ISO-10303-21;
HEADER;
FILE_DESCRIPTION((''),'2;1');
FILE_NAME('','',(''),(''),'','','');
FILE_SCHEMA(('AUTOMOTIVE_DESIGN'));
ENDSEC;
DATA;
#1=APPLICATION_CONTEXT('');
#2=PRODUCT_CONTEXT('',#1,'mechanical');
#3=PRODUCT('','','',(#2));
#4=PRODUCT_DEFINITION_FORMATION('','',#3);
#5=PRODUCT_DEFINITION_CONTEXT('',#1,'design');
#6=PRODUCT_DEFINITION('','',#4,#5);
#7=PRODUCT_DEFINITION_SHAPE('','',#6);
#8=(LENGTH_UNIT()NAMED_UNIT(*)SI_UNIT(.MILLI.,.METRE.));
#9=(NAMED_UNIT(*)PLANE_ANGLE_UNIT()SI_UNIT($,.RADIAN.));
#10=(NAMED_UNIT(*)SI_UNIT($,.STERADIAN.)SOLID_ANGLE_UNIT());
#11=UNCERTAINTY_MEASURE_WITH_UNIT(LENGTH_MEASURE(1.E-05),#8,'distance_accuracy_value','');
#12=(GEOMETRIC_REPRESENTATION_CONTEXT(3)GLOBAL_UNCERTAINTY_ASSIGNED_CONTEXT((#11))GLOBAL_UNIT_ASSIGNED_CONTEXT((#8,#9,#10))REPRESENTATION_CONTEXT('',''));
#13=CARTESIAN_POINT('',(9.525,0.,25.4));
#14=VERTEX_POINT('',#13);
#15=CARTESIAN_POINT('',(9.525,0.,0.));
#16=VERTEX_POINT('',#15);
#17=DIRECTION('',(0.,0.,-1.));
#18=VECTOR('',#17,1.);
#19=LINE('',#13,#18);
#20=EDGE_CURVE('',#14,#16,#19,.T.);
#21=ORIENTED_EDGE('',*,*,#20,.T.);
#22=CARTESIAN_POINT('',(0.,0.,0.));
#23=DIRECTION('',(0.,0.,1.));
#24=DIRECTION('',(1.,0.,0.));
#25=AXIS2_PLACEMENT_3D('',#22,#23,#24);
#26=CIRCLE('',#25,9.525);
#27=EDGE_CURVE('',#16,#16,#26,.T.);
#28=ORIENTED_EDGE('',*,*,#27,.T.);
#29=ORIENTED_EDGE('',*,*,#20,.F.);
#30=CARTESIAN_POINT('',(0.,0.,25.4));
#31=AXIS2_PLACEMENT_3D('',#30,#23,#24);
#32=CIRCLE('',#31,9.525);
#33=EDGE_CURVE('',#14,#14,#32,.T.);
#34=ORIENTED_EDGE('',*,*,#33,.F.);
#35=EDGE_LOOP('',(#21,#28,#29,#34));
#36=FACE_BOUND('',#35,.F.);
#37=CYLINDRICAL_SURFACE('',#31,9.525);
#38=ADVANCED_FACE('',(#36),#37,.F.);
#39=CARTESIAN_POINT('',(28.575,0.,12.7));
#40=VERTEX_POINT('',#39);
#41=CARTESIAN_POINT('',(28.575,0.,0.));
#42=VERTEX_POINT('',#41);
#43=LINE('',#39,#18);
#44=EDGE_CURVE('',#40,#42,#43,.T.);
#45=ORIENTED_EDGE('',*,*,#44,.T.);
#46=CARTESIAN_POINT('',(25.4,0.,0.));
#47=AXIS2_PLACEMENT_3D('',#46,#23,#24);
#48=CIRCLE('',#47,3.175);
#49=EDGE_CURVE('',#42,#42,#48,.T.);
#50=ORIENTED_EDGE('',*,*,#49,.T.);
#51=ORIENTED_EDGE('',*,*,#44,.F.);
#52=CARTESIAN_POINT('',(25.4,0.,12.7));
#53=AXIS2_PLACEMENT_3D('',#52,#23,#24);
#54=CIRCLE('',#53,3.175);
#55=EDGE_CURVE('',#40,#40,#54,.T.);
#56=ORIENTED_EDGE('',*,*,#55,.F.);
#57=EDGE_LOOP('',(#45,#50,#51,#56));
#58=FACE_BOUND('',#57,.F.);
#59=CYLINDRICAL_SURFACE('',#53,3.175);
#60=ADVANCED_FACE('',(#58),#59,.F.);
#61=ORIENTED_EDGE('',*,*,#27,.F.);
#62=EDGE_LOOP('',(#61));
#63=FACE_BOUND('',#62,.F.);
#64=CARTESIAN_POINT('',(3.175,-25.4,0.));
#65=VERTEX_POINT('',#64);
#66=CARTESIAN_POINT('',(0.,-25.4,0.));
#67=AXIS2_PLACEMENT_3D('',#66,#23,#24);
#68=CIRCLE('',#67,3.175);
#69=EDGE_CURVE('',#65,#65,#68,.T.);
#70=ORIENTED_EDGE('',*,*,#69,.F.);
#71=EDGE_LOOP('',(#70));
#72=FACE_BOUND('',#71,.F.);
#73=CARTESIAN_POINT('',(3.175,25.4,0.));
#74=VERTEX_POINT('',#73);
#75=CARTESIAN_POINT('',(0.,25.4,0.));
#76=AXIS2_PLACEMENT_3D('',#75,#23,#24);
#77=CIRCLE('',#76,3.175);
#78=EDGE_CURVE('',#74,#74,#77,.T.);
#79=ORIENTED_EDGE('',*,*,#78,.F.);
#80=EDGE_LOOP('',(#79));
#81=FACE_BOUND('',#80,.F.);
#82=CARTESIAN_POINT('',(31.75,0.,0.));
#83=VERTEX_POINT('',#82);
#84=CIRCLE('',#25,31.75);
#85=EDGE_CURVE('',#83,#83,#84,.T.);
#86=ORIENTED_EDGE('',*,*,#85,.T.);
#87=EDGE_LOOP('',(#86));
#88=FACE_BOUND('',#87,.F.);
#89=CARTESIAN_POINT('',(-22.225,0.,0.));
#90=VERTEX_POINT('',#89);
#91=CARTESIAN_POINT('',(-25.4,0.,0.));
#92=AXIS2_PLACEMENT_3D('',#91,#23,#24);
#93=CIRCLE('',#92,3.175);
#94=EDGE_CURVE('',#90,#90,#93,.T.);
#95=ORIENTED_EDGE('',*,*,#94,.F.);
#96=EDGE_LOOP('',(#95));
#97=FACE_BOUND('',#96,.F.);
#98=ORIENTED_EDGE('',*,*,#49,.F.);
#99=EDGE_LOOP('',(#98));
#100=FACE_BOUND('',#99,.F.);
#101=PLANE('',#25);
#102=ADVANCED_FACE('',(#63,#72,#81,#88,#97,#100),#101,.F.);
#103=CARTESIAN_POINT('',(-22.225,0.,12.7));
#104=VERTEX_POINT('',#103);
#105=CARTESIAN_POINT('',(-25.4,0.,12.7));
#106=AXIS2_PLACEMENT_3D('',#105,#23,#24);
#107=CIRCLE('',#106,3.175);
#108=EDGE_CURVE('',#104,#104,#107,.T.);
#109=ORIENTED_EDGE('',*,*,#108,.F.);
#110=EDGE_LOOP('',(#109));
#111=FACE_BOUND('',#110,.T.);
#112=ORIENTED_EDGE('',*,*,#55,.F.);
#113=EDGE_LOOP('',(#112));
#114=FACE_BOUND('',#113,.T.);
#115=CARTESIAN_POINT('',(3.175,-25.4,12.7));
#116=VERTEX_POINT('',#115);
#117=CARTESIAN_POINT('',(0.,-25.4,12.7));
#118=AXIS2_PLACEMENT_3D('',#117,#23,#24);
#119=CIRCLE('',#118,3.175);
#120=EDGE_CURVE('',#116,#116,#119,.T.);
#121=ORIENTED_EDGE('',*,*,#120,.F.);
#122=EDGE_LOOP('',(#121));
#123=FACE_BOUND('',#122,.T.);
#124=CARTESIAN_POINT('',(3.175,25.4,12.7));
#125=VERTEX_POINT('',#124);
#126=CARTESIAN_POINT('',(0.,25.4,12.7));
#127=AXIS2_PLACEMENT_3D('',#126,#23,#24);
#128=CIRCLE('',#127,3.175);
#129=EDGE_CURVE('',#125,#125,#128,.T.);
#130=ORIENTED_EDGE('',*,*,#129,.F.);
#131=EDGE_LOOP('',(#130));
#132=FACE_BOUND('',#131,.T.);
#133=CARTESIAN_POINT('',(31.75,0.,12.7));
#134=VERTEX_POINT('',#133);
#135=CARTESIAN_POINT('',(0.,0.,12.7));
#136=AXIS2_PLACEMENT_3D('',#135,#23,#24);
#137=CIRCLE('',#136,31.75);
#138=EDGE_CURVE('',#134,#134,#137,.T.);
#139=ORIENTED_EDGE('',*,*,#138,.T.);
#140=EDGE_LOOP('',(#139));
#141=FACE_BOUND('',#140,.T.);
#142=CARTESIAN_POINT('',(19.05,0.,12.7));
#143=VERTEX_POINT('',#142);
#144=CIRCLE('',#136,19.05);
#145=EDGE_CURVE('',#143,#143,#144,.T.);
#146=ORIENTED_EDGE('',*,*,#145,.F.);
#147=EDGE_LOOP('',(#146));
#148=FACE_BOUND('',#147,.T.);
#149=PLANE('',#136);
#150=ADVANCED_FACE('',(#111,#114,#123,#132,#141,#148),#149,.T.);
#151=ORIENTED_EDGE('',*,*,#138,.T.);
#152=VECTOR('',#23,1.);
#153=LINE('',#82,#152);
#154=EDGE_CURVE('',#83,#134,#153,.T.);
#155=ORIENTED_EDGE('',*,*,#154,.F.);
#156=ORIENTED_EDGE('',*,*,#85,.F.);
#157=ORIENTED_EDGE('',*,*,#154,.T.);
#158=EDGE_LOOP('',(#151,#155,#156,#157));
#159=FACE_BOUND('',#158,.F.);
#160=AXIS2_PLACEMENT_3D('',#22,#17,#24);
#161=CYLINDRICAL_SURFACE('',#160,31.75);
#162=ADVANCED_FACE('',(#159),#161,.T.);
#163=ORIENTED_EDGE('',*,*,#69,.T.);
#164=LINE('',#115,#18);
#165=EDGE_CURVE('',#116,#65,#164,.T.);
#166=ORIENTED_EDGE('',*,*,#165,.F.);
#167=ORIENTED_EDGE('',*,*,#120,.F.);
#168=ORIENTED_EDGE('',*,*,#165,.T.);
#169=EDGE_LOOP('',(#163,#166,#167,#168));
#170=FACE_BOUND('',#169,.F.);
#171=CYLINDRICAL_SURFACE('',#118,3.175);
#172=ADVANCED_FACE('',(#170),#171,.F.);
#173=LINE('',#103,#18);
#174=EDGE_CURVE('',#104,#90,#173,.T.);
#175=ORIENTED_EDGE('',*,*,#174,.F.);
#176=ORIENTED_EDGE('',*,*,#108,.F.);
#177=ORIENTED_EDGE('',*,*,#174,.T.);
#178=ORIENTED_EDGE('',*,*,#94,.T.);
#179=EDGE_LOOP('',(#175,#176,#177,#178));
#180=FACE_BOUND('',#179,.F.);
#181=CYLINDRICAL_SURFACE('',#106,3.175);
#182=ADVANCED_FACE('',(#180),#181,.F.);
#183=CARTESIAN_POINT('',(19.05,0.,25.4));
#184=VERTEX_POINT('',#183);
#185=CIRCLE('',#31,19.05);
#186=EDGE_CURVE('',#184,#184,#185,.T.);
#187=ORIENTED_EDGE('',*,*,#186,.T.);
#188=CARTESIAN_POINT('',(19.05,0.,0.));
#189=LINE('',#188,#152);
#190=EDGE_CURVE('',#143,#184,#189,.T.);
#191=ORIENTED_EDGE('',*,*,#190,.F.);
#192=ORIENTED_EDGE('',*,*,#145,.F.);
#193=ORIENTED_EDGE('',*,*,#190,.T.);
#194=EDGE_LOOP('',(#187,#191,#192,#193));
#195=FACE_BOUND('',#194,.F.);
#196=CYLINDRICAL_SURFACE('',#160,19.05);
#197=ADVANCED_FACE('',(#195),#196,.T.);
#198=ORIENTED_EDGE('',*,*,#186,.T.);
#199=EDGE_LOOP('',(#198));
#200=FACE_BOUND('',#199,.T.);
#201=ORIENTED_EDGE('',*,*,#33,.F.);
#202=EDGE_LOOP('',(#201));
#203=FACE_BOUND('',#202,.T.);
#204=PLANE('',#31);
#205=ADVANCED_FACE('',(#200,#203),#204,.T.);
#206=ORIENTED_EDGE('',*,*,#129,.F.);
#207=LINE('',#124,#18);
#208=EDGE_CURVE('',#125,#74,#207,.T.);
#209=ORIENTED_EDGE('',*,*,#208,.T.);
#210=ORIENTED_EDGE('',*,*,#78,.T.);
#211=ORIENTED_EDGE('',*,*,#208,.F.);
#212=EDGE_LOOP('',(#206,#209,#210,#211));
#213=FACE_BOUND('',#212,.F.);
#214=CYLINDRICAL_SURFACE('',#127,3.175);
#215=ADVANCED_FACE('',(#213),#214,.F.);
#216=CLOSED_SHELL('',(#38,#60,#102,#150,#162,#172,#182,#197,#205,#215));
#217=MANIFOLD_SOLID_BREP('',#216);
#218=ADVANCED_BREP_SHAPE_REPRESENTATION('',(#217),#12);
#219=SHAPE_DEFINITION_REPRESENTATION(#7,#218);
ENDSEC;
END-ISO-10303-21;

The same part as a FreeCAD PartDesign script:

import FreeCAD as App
import Part
import Sketcher
Q = App.Units.Quantity

doc = App.newDocument("Part")
params = doc.addObject("Spreadsheet::Sheet", "Params")
for row, (alias, value) in enumerate([
    ("sketch1_diameter", "2.5 in"),
    ("sketch1_diameter2", "1.5 in"),
    ("pad1_length", "0.5 in"),
    ("sketch2_diameter", "1.5 in"),
    ("pad2_length", "1 in"),
    ("sketch3_diameter", "0.75 in"),
    ("sketch4_diameter", "0.25 in"),
], start=1):
    params.set(f"A{row}", alias)
    params.set(f"B{row}", "=" + value)
    params.setAlias(f"B{row}", alias)

body = doc.addObject("PartDesign::Body", "Body")

# Sketch on XY plane
sketch1 = doc.addObject("Sketcher::SketchObject", "Sketch")
body.addObject(sketch1)
sketch1.AttachmentSupport = (doc.XY_Plane, [""])
sketch1.MapMode = "FlatFace"
sketch1.addGeometry(Part.Circle(App.Vector(0, 0, 0), App.Vector(0, 0, 1), 32), False)
sketch1.addGeometry(Part.Circle(App.Vector(0, 0, 0), App.Vector(0, 0, 1), 19), False)
sketch1.addConstraint(Sketcher.Constraint("Coincident", 0, 3, -1, 1))
sketch1.addConstraint(Sketcher.Constraint("Coincident", 1, 3, -1, 1))
sketch1.addConstraint(Sketcher.Constraint("Diameter", 0, Q("2.5 in")))
sketch1.addConstraint(Sketcher.Constraint("Diameter", 1, Q("1.5 in")))
sketch1.setExpression("Constraints[2]", "Params.sketch1_diameter")
sketch1.setExpression("Constraints[3]", "Params.sketch1_diameter2")
pad1 = doc.addObject("PartDesign::Pad", "Pad")
body.addObject(pad1)
pad1.Profile = sketch1
pad1.setExpression("Length", "Params.pad1_length")

# Sketch on XY plane
sketch2 = doc.addObject("Sketcher::SketchObject", "Sketch001")
body.addObject(sketch2)
sketch2.AttachmentSupport = (doc.XY_Plane, [""])
sketch2.MapMode = "FlatFace"
sketch2.addGeometry(Part.Circle(App.Vector(0, 0, 0), App.Vector(0, 0, 1), 19), False)
sketch2.addConstraint(Sketcher.Constraint("Coincident", 0, 3, -1, 1))
sketch2.addConstraint(Sketcher.Constraint("Diameter", 0, Q("1.5 in")))
sketch2.setExpression("Constraints[1]", "Params.sketch2_diameter")
pad2 = doc.addObject("PartDesign::Pad", "Pad001")
body.addObject(pad2)
pad2.Profile = sketch2
pad2.setExpression("Length", "Params.pad2_length")

# Sketch on XY plane
sketch3 = doc.addObject("Sketcher::SketchObject", "Sketch002")
body.addObject(sketch3)
sketch3.AttachmentSupport = (doc.XY_Plane, [""])
sketch3.MapMode = "FlatFace"
sketch3.AttachmentOffset = App.Placement(App.Vector(0, 0, 1 * 25.4), App.Rotation())
sketch3.addGeometry(Part.Circle(App.Vector(0, 0, 0), App.Vector(0, 0, 1), 10), False)
sketch3.addConstraint(Sketcher.Constraint("Coincident", 0, 3, -1, 1))
sketch3.addConstraint(Sketcher.Constraint("Diameter", 0, Q("0.75 in")))
sketch3.setExpression("Constraints[1]", "Params.sketch3_diameter")
pocket1 = doc.addObject("PartDesign::Pocket", "Pocket")
body.addObject(pocket1)
pocket1.Profile = sketch3
pocket1.Type = "ThroughAll"

# Sketch on XY plane
sketch4 = doc.addObject("Sketcher::SketchObject", "Sketch003")
body.addObject(sketch4)
sketch4.AttachmentSupport = (doc.XY_Plane, [""])
sketch4.MapMode = "FlatFace"
sketch4.AttachmentOffset = App.Placement(App.Vector(0, 0, 0.5 * 25.4), App.Rotation())
sketch4.addGeometry(Part.Circle(App.Vector(-25.4, 0, 0), App.Vector(0, 0, 1), 3.2), False)
sketch4.addGeometry(Part.Circle(App.Vector(0, -25.4, 0), App.Vector(0, 0, 1), 3.2), False)
sketch4.addGeometry(Part.Circle(App.Vector(25.4, 0, 0), App.Vector(0, 0, 1), 3.2), False)
sketch4.addGeometry(Part.Circle(App.Vector(0, 25.4, 0), App.Vector(0, 0, 1), 3.2), False)
sketch4.addConstraint(Sketcher.Constraint("Equal", 0, 1))
sketch4.addConstraint(Sketcher.Constraint("Equal", 1, 2))
sketch4.addConstraint(Sketcher.Constraint("Equal", 2, 3))
sketch4.addConstraint(Sketcher.Constraint("Symmetric", 0, 3, 2, 3, -1, 1))
sketch4.addConstraint(Sketcher.Constraint("Symmetric", 1, 3, 3, 3, -1, 1))
sketch4.addConstraint(Sketcher.Constraint("PointOnObject", 0, 3, -1))
sketch4.addConstraint(Sketcher.Constraint("PointOnObject", 1, 3, -2))
sketch4.addConstraint(Sketcher.Constraint("Diameter", 0, Q("0.25 in")))
sketch4.addConstraint(Sketcher.Constraint("DistanceX", 0, 3, -1, 1, Q("1 in")))
sketch4.addConstraint(Sketcher.Constraint("DistanceY", 1, 3, -1, 1, Q("1 in")))
sketch4.setExpression("Constraints[7]", "Params.sketch4_diameter")
pocket2 = doc.addObject("PartDesign::Pocket", "Pocket001")
body.addObject(pocket2)
pocket2.Profile = sketch4
pocket2.Type = "ThroughAll"

doc.recompute()
